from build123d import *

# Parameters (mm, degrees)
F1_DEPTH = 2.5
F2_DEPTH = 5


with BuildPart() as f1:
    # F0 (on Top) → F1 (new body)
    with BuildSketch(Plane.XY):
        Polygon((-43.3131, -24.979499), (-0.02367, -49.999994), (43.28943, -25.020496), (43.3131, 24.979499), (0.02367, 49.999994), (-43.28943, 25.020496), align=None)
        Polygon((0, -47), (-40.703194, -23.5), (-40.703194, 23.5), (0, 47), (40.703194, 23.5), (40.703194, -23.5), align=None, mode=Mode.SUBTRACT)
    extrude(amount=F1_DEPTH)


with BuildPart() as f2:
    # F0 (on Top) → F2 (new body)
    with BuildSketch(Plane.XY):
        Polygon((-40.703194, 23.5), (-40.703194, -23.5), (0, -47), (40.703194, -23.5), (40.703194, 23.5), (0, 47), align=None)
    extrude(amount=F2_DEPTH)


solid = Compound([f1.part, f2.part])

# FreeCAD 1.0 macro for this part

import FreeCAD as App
import Part
import Sketcher
Q = App.Units.Quantity

doc = App.newDocument("Part")
body = doc.addObject("PartDesign::Body", "Body")

sketch1 = body.newObject("Sketcher::SketchObject", "Sketch")
sketch1.AttachmentSupport = (doc.getObject("XY_Plane"), [""])
sketch1.MapMode = "FlatFace"
sketch1.addGeometry(Part.LineSegment(App.Vector(-43, -25, 0), App.Vector(0, -50, 0)), False)
sketch1.addGeometry(Part.LineSegment(App.Vector(0, -50, 0), App.Vector(43, -25, 0)), False)
sketch1.addGeometry(Part.LineSegment(App.Vector(43, -25, 0), App.Vector(43, 25, 0)), False)
sketch1.addGeometry(Part.LineSegment(App.Vector(43, 25, 0), App.Vector(0, 50, 0)), False)
sketch1.addGeometry(Part.LineSegment(App.Vector(0, 50, 0), App.Vector(-43, 25, 0)), False)
sketch1.addGeometry(Part.LineSegment(App.Vector(-43, 25, 0), App.Vector(-43, -25, 0)), False)
sketch1.addGeometry(Part.LineSegment(App.Vector(41, -24, 0), App.Vector(0, -47, 0)), False)
sketch1.addGeometry(Part.LineSegment(App.Vector(0, -47, 0), App.Vector(-41, -24, 0)), False)
sketch1.addGeometry(Part.LineSegment(App.Vector(-41, -24, 0), App.Vector(-41, 24, 0)), False)
sketch1.addGeometry(Part.LineSegment(App.Vector(-41, 24, 0), App.Vector(0, 47, 0)), False)
sketch1.addGeometry(Part.LineSegment(App.Vector(0, 47, 0), App.Vector(41, 24, 0)), False)
sketch1.addGeometry(Part.LineSegment(App.Vector(41, 24, 0), App.Vector(41, -24, 0)), False)
sketch1.addConstraint(Sketcher.Constraint("Coincident", 0, 2, 1, 1))
sketch1.addConstraint(Sketcher.Constraint("Coincident", 1, 2, 2, 1))
sketch1.addConstraint(Sketcher.Constraint("Coincident", 2, 2, 3, 1))
sketch1.addConstraint(Sketcher.Constraint("Coincident", 3, 2, 4, 1))
sketch1.addConstraint(Sketcher.Constraint("Coincident", 4, 2, 5, 1))
sketch1.addConstraint(Sketcher.Constraint("Coincident", 5, 2, 0, 1))
sketch1.addConstraint(Sketcher.Constraint("Coincident", 6, 2, 7, 1))
sketch1.addConstraint(Sketcher.Constraint("Coincident", 7, 2, 8, 1))
sketch1.addConstraint(Sketcher.Constraint("Coincident", 8, 2, 9, 1))
sketch1.addConstraint(Sketcher.Constraint("Coincident", 9, 2, 10, 1))
sketch1.addConstraint(Sketcher.Constraint("Coincident", 10, 2, 11, 1))
sketch1.addConstraint(Sketcher.Constraint("Coincident", 11, 2, 6, 1))
sketch1.addConstraint(Sketcher.Constraint("Vertical", 8))
sketch1.addConstraint(Sketcher.Constraint("Vertical", 11))
sketch1.addConstraint(Sketcher.Constraint("Symmetric", 0, 2, 3, 2, -1, 1))
sketch1.addConstraint(Sketcher.Constraint("Symmetric", 1, 2, 4, 2, -1, 1))
sketch1.addConstraint(Sketcher.Constraint("Symmetric", 2, 2, 5, 2, -1, 1))
sketch1.addConstraint(Sketcher.Constraint("Symmetric", 6, 2, 9, 2, -1, 1))
sketch1.addConstraint(Sketcher.Constraint("Symmetric", 7, 2, 10, 2, -1, 1))
sketch1.addConstraint(Sketcher.Constraint("PointOnObject", 6, 2, -2))
sketch1.addConstraint(Sketcher.Constraint("Parallel", 6, 9))
sketch1.addConstraint(Sketcher.Constraint("Horizontal", 8, 2, 10, 2))
sketch1.addConstraint(Sketcher.Constraint("Equal", 0, 1))
sketch1.addConstraint(Sketcher.Constraint("Equal", 1, 2))
sketch1.addConstraint(Sketcher.Constraint("DistanceY", 8, 1, 8, 2, Q("47 mm")))
sketch1.addConstraint(Sketcher.Constraint("Angle", 6, Q("-150 deg")))
sketch1.addConstraint(Sketcher.Constraint("Distance", 0, Q("49.999999 mm")))
sketch1.addConstraint(Sketcher.Constraint("Distance", 6, Q("47 mm")))
sketch1.addConstraint(Sketcher.Constraint("DistanceX", -1, 1, 2, 2, Q("43.3131 mm")))
sketch1.addConstraint(Sketcher.Constraint("DistanceY", -1, 1, 2, 2, Q("24.979499 mm")))
sketch1.addConstraint(Sketcher.Constraint("DistanceX", 0, 2, 1, 2, Q("43.3131 mm")))
pad1 = body.newObject("PartDesign::Pad", "Pad")
pad1.Profile = sketch1
pad1.Length = 2.5
body2 = doc.addObject("PartDesign::Body", "Body001")

sketch2 = body2.newObject("Sketcher::SketchObject", "Sketch001")
sketch2.AttachmentSupport = (doc.getObject("XY_Plane001"), [""])
sketch2.MapMode = "FlatFace"
sketch2.addGeometry(Part.LineSegment(App.Vector(-41, 24, 0), App.Vector(-41, -24, 0)), False)
sketch2.addGeometry(Part.LineSegment(App.Vector(-41, -24, 0), App.Vector(0, -47, 0)), False)
sketch2.addGeometry(Part.LineSegment(App.Vector(0, -47, 0), App.Vector(41, -24, 0)), False)
sketch2.addGeometry(Part.LineSegment(App.Vector(41, -24, 0), App.Vector(41, 24, 0)), False)
sketch2.addGeometry(Part.LineSegment(App.Vector(41, 24, 0), App.Vector(0, 47, 0)), False)
sketch2.addGeometry(Part.LineSegment(App.Vector(0, 47, 0), App.Vector(-41, 24, 0)), False)
sketch2.addConstraint(Sketcher.Constraint("Coincident", 0, 2, 1, 1))
sketch2.addConstraint(Sketcher.Constraint("Coincident", 1, 2, 2, 1))
sketch2.addConstraint(Sketcher.Constraint("Coincident", 2, 2, 3, 1))
sketch2.addConstraint(Sketcher.Constraint("Coincident", 3, 2, 4, 1))
sketch2.addConstraint(Sketcher.Constraint("Coincident", 4, 2, 5, 1))
sketch2.addConstraint(Sketcher.Constraint("Coincident", 5, 2, 0, 1))
sketch2.addConstraint(Sketcher.Constraint("Vertical", 0))
sketch2.addConstraint(Sketcher.Constraint("Vertical", 3))
sketch2.addConstraint(Sketcher.Constraint("Symmetric", 0, 2, 3, 2, -1, 1))
sketch2.addConstraint(Sketcher.Constraint("Symmetric", 1, 2, 4, 2, -1, 1))
sketch2.addConstraint(Sketcher.Constraint("PointOnObject", 1, 2, -2))
sketch2.addConstraint(Sketcher.Constraint("Parallel", 2, 5))
sketch2.addConstraint(Sketcher.Constraint("Horizontal", 0, 2, 2, 2))
sketch2.addConstraint(Sketcher.Constraint("DistanceY", 0, 2, 0, 1, Q("47 mm")))
sketch2.addConstraint(Sketcher.Constraint("Angle", 1, Q("-30 deg")))
sketch2.addConstraint(Sketcher.Constraint("Distance", 1, Q("47 mm")))
pad2 = body2.newObject("PartDesign::Pad", "Pad001")
pad2.Profile = sketch2
pad2.Length = 5

doc.recompute()
